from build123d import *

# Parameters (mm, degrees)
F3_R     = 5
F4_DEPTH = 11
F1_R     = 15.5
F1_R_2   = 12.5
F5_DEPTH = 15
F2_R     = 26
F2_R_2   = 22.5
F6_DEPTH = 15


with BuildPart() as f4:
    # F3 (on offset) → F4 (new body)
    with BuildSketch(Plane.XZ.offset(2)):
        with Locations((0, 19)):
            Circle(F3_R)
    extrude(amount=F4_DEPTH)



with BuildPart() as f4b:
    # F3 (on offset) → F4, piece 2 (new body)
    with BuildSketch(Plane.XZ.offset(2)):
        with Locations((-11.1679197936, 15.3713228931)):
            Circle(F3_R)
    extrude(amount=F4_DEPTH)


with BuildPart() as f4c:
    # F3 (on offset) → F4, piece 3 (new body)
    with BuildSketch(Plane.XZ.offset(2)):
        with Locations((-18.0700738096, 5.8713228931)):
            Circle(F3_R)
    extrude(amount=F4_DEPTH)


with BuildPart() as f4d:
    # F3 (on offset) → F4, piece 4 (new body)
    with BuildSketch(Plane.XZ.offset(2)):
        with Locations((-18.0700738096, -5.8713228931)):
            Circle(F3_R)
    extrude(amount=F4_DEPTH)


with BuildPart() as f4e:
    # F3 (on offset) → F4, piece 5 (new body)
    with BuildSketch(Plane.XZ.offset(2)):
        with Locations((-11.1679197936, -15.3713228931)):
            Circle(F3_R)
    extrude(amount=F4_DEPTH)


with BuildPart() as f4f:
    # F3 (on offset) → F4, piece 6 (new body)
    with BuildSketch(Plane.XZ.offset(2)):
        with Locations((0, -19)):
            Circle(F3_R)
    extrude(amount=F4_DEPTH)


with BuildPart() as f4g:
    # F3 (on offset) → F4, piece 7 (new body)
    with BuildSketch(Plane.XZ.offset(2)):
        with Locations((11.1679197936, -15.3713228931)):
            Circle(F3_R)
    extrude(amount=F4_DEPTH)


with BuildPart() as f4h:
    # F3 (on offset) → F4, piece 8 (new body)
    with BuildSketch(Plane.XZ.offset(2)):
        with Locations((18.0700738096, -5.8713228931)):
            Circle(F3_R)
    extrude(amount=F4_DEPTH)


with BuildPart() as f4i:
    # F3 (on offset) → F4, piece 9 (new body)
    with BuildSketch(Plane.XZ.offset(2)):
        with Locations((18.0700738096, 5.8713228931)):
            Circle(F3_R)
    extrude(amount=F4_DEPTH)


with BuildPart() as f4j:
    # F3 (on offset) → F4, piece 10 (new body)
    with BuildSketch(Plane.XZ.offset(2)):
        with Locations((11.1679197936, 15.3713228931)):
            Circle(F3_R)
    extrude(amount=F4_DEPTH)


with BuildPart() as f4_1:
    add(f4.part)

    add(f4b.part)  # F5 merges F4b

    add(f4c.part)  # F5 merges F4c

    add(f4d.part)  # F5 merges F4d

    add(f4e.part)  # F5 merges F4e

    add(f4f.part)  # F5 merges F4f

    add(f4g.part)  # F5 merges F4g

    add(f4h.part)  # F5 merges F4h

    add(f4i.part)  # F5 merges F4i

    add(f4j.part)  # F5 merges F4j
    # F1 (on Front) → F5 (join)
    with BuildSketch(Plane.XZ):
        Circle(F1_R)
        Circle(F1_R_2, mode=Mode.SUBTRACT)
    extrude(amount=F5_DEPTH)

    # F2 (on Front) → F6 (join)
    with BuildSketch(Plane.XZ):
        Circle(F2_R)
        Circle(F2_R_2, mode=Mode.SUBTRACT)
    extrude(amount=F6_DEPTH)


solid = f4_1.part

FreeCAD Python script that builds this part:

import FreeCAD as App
import Part
import Sketcher
from FreeCAD import Vector
Q = App.Units.Quantity

doc = App.newDocument("Part")
body = doc.addObject("PartDesign::Body", "Body")

sketch1 = body.newObject("Sketcher::SketchObject", "Sketch")
sketch1.AttachmentSupport = (doc.getObject("XZ_Plane"), [""])
sketch1.MapMode = "FlatFace"
sketch1.AttachmentOffset = App.Placement(Vector(0, 0, 2), App.Rotation())
sketch1.addGeometry(Part.Circle(Vector(0, 19, 0), Vector(0, 0, 1), 5), False)
sketch1.addConstraint([
    Sketcher.Constraint("PointOnObject", 0, 3, -2),
    Sketcher.Constraint("Diameter", 0, Q("10 mm")),
    Sketcher.Constraint("DistanceY", -1, 1, 0, 3, Q("19 mm")),
])
pad1 = body.newObject("PartDesign::Pad", "Pad")
pad1.Profile = sketch1
pad1.Length = 11
body2 = doc.addObject("PartDesign::Body", "Body001")

sketch2 = body2.newObject("Sketcher::SketchObject", "Sketch001")
sketch2.AttachmentSupport = (doc.getObject("XZ_Plane001"), [""])
sketch2.MapMode = "FlatFace"
sketch2.AttachmentOffset = App.Placement(Vector(0, 0, 2), App.Rotation())
sketch2.addGeometry(Part.Circle(Vector(-11.16792, 15.371323, 0), Vector(0, 0, 1), 5), False)
sketch2.addConstraint([
    Sketcher.Constraint("Diameter", 0, Q("10 mm")),
    Sketcher.Constraint("DistanceX", 0, 3, -1, 1, Q("11.16792 mm")),
    Sketcher.Constraint("DistanceY", -1, 1, 0, 3, Q("15.371323 mm")),
])
pad2 = body2.newObject("PartDesign::Pad", "Pad001")
pad2.Profile = sketch2
pad2.Length = 11
body3 = doc.addObject("PartDesign::Body", "Body002")

sketch3 = body3.newObject("Sketcher::SketchObject", "Sketch002")
sketch3.AttachmentSupport = (doc.getObject("XZ_Plane002"), [""])
sketch3.MapMode = "FlatFace"
sketch3.AttachmentOffset = App.Placement(Vector(0, 0, 2), App.Rotation())
sketch3.addGeometry(Part.Circle(Vector(-18.070074, 5.871323, 0), Vector(0, 0, 1), 5), False)
sketch3.addConstraint([
    Sketcher.Constraint("Diameter", 0, Q("10 mm")),
    Sketcher.Constraint("DistanceX", 0, 3, -1, 1, Q("18.070074 mm")),
    Sketcher.Constraint("DistanceY", -1, 1, 0, 3, Q("5.871323 mm")),
])
pad3 = body3.newObject("PartDesign::Pad", "Pad002")
pad3.Profile = sketch3
pad3.Length = 11
body4 = doc.addObject("PartDesign::Body", "Body003")

sketch4 = body4.newObject("Sketcher::SketchObject", "Sketch003")
sketch4.AttachmentSupport = (doc.getObject("XZ_Plane003"), [""])
sketch4.MapMode = "FlatFace"
sketch4.AttachmentOffset = App.Placement(Vector(0, 0, 2), App.Rotation())
sketch4.addGeometry(Part.Circle(Vector(-18.070074, -5.871323, 0), Vector(0, 0, 1), 5), False)
sketch4.addConstraint([
    Sketcher.Constraint("Diameter", 0, Q("10 mm")),
    Sketcher.Constraint("DistanceX", 0, 3, -1, 1, Q("18.070074 mm")),
    Sketcher.Constraint("DistanceY", 0, 3, -1, 1, Q("5.871323 mm")),
])
pad4 = body4.newObject("PartDesign::Pad", "Pad003")
pad4.Profile = sketch4
pad4.Length = 11
body5 = doc.addObject("PartDesign::Body", "Body004")

sketch5 = body5.newObject("Sketcher::SketchObject", "Sketch004")
sketch5.AttachmentSupport = (doc.getObject("XZ_Plane004"), [""])
sketch5.MapMode = "FlatFace"
sketch5.AttachmentOffset = App.Placement(Vector(0, 0, 2), App.Rotation())
sketch5.addGeometry(Part.Circle(Vector(-11.16792, -15.371323, 0), Vector(0, 0, 1), 5), False)
sketch5.addConstraint([
    Sketcher.Constraint("Diameter", 0, Q("10 mm")),
    Sketcher.Constraint("DistanceX", 0, 3, -1, 1, Q("11.16792 mm")),
    Sketcher.Constraint("DistanceY", 0, 3, -1, 1, Q("15.371323 mm")),
])
pad5 = body5.newObject("PartDesign::Pad", "Pad004")
pad5.Profile = sketch5
pad5.Length = 11
body6 = doc.addObject("PartDesign::Body", "Body005")

sketch6 = body6.newObject("Sketcher::SketchObject", "Sketch005")
sketch6.AttachmentSupport = (doc.getObject("XZ_Plane005"), [""])
sketch6.MapMode = "FlatFace"
sketch6.AttachmentOffset = App.Placement(Vector(0, 0, 2), App.Rotation())
sketch6.addGeometry(Part.Circle(Vector(0, -19, 0), Vector(0, 0, 1), 5), False)
sketch6.addConstraint([
    Sketcher.Constraint("PointOnObject", 0, 3, -2),
    Sketcher.Constraint("Diameter", 0, Q("10 mm")),
    Sketcher.Constraint("DistanceY", 0, 3, -1, 1, Q("19 mm")),
])
pad6 = body6.newObject("PartDesign::Pad", "Pad005")
pad6.Profile = sketch6
pad6.Length = 11
body7 = doc.addObject("PartDesign::Body", "Body006")

sketch7 = body7.newObject("Sketcher::SketchObject", "Sketch006")
sketch7.AttachmentSupport = (doc.getObject("XZ_Plane006"), [""])
sketch7.MapMode = "FlatFace"
sketch7.AttachmentOffset = App.Placement(Vector(0, 0, 2), App.Rotation())
sketch7.addGeometry(Part.Circle(Vector(11.16792, -15.371323, 0), Vector(0, 0, 1), 5), False)
sketch7.addConstraint([
    Sketcher.Constraint("Diameter", 0, Q("10 mm")),
    Sketcher.Constraint("DistanceX", -1, 1, 0, 3, Q("11.16792 mm")),
    Sketcher.Constraint("DistanceY", 0, 3, -1, 1, Q("15.371323 mm")),
])
pad7 = body7.newObject("PartDesign::Pad", "Pad006")
pad7.Profile = sketch7
pad7.Length = 11
body8 = doc.addObject("PartDesign::Body", "Body007")

sketch8 = body8.newObject("Sketcher::SketchObject", "Sketch007")
sketch8.AttachmentSupport = (doc.getObject("XZ_Plane007"), [""])
sketch8.MapMode = "FlatFace"
sketch8.AttachmentOffset = App.Placement(Vector(0, 0, 2), App.Rotation())
sketch8.addGeometry(Part.Circle(Vector(18.070074, -5.871323, 0), Vector(0, 0, 1), 5), False)
sketch8.addConstraint([
    Sketcher.Constraint("Diameter", 0, Q("10 mm")),
    Sketcher.Constraint("DistanceX", -1, 1, 0, 3, Q("18.070074 mm")),
    Sketcher.Constraint("DistanceY", 0, 3, -1, 1, Q("5.871323 mm")),
])
pad8 = body8.newObject("PartDesign::Pad", "Pad007")
pad8.Profile = sketch8
pad8.Length = 11
body9 = doc.addObject("PartDesign::Body", "Body008")

sketch9 = body9.newObject("Sketcher::SketchObject", "Sketch008")
sketch9.AttachmentSupport = (doc.getObject("XZ_Plane008"), [""])
sketch9.MapMode = "FlatFace"
sketch9.AttachmentOffset = App.Placement(Vector(0, 0, 2), App.Rotation())
sketch9.addGeometry(Part.Circle(Vector(18.070074, 5.871323, 0), Vector(0, 0, 1), 5), False)
sketch9.addConstraint([
    Sketcher.Constraint("Diameter", 0, Q("10 mm")),
    Sketcher.Constraint("DistanceX", -1, 1, 0, 3, Q("18.070074 mm")),
    Sketcher.Constraint("DistanceY", -1, 1, 0, 3, Q("5.871323 mm")),
])
pad9 = body9.newObject("PartDesign::Pad", "Pad008")
pad9.Profile = sketch9
pad9.Length = 11
body10 = doc.addObject("PartDesign::Body", "Body009")

sketch10 = body10.newObject("Sketcher::SketchObject", "Sketch009")
sketch10.AttachmentSupport = (doc.getObject("XZ_Plane009"), [""])
sketch10.MapMode = "FlatFace"
sketch10.AttachmentOffset = App.Placement(Vector(0, 0, 2), App.Rotation())
sketch10.addGeometry(Part.Circle(Vector(11.16792, 15.371323, 0), Vector(0, 0, 1), 5), False)
sketch10.addConstraint([
    Sketcher.Constraint("Diameter", 0, Q("10 mm")),
    Sketcher.Constraint("DistanceX", -1, 1, 0, 3, Q("11.16792 mm")),
    Sketcher.Constraint("DistanceY", -1, 1, 0, 3, Q("15.371323 mm")),
])
pad10 = body10.newObject("PartDesign::Pad", "Pad009")
pad10.Profile = sketch10
pad10.Length = 11
body.AllowCompound = True
doc.recompute()

boolean = body.newObject("PartDesign::Boolean", "Boolean")
boolean.Type = "Fuse"
boolean.addObjects([body2])
doc.recompute()

boolean2 = body.newObject("PartDesign::Boolean", "Boolean001")
boolean2.Type = "Fuse"
boolean2.addObjects([body3])
doc.recompute()

boolean3 = body.newObject("PartDesign::Boolean", "Boolean002")
boolean3.Type = "Fuse"
boolean3.addObjects([body4])
doc.recompute()

boolean4 = body.newObject("PartDesign::Boolean", "Boolean003")
boolean4.Type = "Fuse"
boolean4.addObjects([body5])
doc.recompute()

boolean5 = body.newObject("PartDesign::Boolean", "Boolean004")
boolean5.Type = "Fuse"
boolean5.addObjects([body6])
doc.recompute()

boolean6 = body.newObject("PartDesign::Boolean", "Boolean005")
boolean6.Type = "Fuse"
boolean6.addObjects([body7])
doc.recompute()

boolean7 = body.newObject("PartDesign::Boolean", "Boolean006")
boolean7.Type = "Fuse"
boolean7.addObjects([body8])
doc.recompute()

boolean8 = body.newObject("PartDesign::Boolean", "Boolean007")
boolean8.Type = "Fuse"
boolean8.addObjects([body9])
doc.recompute()

boolean9 = body.newObject("PartDesign::Boolean", "Boolean008")
boolean9.Type = "Fuse"
boolean9.addObjects([body10])

sketch11 = body.newObject("Sketcher::SketchObject", "Sketch010")
sketch11.AttachmentSupport = (doc.getObject("XZ_Plane"), [""])
sketch11.MapMode = "FlatFace"
sketch11.addGeometry([
    Part.Circle(Vector(0, 0, 0), Vector(0, 0, 1), 15.5),
    Part.Circle(Vector(0, 0, 0), Vector(0, 0, 1), 12.5),
], False)
sketch11.addConstraint([
    Sketcher.Constraint("Coincident", 0, 3, -1, 1),
    Sketcher.Constraint("Coincident", 1, 3, -1, 1),
    Sketcher.Constraint("Diameter", 0, Q("31 mm")),
    Sketcher.Constraint("Diameter", 1, Q("25 mm")),
])
pad11 = body.newObject("PartDesign::Pad", "Pad010")
pad11.Profile = sketch11
pad11.Length = 15

sketch12 = body.newObject("Sketcher::SketchObject", "Sketch011")
sketch12.AttachmentSupport = (doc.getObject("XZ_Plane"), [""])
sketch12.MapMode = "FlatFace"
sketch12.addGeometry([
    Part.Circle(Vector(0, 0, 0), Vector(0, 0, 1), 26),
    Part.Circle(Vector(0, 0, 0), Vector(0, 0, 1), 22.5),
], False)
sketch12.addConstraint([
    Sketcher.Constraint("Coincident", 0, 3, -1, 1),
    Sketcher.Constraint("Coincident", 1, 3, -1, 1),
    Sketcher.Constraint("Diameter", 0, Q("52 mm")),
    Sketcher.Constraint("Diameter", 1, Q("45 mm")),
])
pad12 = body.newObject("PartDesign::Pad", "Pad011")
pad12.Profile = sketch12
pad12.Length = 15

doc.recompute()
